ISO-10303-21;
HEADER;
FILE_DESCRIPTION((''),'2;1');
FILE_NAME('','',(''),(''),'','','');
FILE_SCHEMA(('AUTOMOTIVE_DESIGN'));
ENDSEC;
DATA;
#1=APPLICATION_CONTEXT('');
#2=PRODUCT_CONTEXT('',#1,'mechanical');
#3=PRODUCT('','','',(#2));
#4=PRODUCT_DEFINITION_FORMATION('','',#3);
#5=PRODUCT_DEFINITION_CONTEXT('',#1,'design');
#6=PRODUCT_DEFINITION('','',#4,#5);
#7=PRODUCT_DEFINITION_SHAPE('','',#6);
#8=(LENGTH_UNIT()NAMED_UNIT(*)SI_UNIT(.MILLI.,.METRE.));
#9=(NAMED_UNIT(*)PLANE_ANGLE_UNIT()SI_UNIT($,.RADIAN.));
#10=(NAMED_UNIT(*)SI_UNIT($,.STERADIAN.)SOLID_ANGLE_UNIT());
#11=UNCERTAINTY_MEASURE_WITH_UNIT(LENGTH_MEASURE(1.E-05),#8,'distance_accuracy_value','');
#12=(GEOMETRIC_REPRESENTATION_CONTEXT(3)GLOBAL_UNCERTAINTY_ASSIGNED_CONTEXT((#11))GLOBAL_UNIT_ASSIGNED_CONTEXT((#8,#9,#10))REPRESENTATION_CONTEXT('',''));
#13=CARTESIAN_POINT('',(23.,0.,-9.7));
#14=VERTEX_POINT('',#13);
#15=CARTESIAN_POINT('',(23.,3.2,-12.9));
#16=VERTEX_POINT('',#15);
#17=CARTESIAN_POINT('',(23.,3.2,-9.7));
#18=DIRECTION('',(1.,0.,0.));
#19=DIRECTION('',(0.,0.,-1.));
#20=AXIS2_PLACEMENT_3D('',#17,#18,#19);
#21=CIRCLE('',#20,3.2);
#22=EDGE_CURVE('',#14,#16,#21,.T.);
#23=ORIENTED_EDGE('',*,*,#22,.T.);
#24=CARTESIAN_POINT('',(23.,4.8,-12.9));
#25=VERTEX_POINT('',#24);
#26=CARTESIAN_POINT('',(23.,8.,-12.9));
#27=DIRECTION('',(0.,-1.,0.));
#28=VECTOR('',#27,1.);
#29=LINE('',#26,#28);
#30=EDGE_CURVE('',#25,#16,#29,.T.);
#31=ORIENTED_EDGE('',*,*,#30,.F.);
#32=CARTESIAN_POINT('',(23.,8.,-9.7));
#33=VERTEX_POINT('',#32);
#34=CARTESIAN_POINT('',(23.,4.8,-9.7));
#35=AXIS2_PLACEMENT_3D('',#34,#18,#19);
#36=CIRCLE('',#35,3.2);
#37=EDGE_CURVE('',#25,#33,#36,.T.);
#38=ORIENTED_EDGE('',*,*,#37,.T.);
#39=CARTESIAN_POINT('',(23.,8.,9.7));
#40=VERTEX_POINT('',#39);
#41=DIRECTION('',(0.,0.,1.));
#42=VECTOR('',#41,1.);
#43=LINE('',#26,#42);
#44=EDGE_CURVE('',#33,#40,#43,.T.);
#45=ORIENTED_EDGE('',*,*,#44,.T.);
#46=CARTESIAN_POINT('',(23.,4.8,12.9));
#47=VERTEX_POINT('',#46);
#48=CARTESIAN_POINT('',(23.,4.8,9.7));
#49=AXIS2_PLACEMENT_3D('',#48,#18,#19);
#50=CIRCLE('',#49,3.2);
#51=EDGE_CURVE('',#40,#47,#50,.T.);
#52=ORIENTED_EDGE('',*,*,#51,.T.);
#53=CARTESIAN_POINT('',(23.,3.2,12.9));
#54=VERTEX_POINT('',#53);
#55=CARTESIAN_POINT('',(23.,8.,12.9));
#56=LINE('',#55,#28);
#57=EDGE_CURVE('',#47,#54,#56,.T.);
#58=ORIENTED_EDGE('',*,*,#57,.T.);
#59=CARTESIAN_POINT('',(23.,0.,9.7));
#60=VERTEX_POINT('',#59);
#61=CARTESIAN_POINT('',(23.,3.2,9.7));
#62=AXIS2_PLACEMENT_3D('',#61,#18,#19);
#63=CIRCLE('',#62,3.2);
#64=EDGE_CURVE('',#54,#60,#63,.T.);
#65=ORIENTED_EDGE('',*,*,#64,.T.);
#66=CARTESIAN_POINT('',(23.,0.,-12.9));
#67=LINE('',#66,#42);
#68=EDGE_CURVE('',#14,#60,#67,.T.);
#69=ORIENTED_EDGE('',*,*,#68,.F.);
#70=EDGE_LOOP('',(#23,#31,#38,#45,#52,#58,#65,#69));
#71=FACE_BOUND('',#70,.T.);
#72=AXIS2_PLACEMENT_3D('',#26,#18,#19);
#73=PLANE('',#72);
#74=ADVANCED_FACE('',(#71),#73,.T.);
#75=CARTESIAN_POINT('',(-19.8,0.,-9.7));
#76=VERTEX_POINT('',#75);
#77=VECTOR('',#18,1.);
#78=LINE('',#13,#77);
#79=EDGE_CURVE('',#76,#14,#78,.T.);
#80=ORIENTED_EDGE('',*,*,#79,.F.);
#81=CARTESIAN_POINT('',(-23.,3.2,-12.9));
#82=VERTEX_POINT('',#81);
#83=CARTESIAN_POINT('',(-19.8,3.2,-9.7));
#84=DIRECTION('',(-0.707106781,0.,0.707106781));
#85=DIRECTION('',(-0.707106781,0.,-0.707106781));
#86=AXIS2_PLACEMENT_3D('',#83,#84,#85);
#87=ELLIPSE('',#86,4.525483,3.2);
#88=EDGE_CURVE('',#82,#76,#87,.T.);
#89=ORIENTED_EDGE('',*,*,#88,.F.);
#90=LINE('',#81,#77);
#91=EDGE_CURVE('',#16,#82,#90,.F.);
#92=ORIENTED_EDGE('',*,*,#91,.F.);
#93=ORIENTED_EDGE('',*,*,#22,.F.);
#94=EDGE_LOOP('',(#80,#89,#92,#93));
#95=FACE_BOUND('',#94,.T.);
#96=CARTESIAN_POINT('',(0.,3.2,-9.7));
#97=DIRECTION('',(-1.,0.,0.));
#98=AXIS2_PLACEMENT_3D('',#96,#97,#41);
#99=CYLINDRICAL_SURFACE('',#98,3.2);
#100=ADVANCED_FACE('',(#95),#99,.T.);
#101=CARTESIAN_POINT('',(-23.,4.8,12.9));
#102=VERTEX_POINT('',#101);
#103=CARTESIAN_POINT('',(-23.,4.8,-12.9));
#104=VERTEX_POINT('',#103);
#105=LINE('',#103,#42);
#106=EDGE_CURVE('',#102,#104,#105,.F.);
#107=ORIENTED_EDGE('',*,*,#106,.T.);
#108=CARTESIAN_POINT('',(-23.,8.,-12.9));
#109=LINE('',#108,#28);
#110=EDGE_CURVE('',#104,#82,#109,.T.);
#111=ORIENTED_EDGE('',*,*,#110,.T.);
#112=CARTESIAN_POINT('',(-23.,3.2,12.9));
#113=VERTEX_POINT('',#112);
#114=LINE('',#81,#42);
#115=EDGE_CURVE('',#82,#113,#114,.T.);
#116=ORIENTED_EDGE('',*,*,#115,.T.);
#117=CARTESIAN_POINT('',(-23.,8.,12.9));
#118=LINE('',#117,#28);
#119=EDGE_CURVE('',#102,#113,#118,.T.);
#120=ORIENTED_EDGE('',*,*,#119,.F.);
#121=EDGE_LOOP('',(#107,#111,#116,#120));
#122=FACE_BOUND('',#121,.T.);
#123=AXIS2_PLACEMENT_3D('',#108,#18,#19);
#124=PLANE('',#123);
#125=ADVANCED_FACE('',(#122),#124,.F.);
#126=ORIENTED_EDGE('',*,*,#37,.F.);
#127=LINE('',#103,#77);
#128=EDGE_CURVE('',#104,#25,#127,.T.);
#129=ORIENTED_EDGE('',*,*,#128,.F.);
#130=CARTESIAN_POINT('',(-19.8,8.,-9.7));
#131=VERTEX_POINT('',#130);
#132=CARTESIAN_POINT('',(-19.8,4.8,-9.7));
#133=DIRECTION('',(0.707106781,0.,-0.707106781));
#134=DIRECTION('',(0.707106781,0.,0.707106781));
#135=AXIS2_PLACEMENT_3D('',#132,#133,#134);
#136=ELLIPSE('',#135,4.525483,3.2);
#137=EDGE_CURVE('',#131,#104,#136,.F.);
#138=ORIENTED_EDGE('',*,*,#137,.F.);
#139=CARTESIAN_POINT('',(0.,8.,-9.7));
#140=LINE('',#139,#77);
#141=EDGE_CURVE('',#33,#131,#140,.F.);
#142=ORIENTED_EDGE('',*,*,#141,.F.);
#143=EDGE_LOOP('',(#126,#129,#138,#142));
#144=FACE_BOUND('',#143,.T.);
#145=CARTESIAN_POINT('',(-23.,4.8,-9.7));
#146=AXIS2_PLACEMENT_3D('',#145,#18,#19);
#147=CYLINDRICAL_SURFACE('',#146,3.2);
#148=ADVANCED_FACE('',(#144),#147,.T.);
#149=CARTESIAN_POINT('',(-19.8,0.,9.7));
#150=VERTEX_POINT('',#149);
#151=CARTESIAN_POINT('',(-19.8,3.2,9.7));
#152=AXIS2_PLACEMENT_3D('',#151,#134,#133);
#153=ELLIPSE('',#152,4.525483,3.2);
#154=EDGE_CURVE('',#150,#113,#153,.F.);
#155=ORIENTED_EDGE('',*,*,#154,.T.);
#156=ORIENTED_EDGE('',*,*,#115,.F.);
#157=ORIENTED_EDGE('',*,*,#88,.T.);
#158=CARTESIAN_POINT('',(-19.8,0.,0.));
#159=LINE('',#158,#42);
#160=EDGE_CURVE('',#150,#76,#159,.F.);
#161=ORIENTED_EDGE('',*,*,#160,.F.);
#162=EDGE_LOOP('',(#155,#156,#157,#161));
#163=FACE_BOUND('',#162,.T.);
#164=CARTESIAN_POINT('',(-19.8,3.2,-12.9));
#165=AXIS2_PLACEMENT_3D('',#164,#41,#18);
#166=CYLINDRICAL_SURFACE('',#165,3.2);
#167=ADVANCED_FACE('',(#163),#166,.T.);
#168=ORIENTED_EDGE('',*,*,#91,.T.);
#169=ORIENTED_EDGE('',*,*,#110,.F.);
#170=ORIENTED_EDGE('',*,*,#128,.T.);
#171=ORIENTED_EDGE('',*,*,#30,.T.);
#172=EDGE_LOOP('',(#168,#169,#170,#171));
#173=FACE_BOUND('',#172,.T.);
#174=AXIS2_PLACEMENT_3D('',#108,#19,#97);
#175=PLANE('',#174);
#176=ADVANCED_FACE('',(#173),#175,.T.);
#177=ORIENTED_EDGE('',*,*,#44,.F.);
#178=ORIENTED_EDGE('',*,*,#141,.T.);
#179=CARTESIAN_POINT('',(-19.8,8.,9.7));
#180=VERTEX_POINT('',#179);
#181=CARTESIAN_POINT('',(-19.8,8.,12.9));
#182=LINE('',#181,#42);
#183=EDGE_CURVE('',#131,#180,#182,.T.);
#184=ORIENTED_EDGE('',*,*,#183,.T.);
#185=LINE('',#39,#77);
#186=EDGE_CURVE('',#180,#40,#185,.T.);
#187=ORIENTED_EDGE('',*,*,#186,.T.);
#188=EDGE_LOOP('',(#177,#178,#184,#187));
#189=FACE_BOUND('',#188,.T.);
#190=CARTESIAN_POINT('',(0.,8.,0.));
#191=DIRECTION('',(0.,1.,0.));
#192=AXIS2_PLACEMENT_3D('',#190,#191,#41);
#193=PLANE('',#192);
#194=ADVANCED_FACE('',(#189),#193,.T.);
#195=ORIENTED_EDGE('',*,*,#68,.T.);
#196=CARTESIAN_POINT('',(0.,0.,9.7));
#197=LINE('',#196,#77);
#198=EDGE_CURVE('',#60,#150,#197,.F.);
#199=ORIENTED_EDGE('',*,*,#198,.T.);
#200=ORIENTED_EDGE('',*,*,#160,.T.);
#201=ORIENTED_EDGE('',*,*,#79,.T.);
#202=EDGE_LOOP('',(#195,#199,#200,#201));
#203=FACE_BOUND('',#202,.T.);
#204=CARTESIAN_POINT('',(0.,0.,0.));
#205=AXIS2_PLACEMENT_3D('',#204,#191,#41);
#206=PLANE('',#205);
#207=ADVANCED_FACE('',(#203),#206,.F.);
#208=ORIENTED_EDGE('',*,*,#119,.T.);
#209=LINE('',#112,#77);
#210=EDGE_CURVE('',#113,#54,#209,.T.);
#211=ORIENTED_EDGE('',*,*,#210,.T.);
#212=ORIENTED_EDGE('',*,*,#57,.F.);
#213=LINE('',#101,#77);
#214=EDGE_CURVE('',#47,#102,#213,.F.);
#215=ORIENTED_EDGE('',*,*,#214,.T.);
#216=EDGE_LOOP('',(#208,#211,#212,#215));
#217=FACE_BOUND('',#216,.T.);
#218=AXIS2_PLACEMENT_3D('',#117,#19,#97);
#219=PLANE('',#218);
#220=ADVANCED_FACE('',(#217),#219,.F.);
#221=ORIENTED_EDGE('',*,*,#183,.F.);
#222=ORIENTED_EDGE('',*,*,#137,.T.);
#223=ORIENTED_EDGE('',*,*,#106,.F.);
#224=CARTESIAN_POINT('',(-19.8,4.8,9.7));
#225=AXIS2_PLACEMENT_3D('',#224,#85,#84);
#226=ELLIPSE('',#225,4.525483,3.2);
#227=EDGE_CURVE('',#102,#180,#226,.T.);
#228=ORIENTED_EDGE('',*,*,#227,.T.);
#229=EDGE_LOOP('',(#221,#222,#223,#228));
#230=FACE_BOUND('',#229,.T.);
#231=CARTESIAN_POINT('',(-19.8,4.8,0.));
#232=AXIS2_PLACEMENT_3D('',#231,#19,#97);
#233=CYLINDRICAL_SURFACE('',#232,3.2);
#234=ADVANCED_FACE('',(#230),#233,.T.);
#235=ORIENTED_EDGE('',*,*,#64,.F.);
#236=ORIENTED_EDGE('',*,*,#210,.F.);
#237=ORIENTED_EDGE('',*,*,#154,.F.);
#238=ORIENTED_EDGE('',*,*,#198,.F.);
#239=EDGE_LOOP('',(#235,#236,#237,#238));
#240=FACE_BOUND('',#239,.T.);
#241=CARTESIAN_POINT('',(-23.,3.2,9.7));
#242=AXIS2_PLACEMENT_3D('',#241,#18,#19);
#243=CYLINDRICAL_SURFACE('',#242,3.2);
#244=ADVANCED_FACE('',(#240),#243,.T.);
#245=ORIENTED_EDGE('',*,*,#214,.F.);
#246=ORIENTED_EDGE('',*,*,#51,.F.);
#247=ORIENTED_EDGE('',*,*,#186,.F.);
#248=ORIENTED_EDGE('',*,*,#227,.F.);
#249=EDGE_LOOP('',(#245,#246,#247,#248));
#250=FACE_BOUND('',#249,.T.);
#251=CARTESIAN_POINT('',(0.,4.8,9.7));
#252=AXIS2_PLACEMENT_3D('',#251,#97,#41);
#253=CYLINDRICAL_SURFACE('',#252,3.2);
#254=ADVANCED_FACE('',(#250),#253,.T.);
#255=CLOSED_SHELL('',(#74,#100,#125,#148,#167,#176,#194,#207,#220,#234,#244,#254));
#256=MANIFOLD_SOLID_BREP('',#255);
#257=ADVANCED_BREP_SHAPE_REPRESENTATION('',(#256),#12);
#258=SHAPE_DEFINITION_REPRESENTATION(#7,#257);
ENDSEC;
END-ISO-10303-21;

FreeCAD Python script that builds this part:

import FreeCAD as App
import Part
import Sketcher

V = App.Vector


def edges_at(feature, points):
    """Names of the edges that pass closest to the given points."""
    edges = feature.Shape.Edges
    near = lambda p: min(range(len(edges)), key=lambda i: edges[i].distToShape(Part.Vertex(*p))[0])
    return sorted({f"Edge{near(p) + 1}" for p in points})

doc = App.newDocument("Part")
body = doc.addObject("PartDesign::Body", "Body")

sketch1 = body.newObject("Sketcher::SketchObject", "Sketch")
sketch1.AttachmentSupport = (doc.getObject("XZ_Plane"), [""])
sketch1.MapMode = "FlatFace"
sketch1.addGeometry([
    Part.LineSegment(V(-23, -12.9, 0), V(-23, 12.9, 0)),
    Part.LineSegment(V(-23, 12.9, 0), V(23, 12.9, 0)),
    Part.LineSegment(V(23, 12.9, 0), V(23, -12.9, 0)),
    Part.LineSegment(V(23, -12.9, 0), V(-23, -12.9, 0)),
], False)
sketch1.addConstraint([
    Sketcher.Constraint("Coincident", 0, 2, 1, 1),
    Sketcher.Constraint("Coincident", 1, 2, 2, 1),
    Sketcher.Constraint("Coincident", 2, 2, 3, 1),
    Sketcher.Constraint("Coincident", 3, 2, 0, 1),
    Sketcher.Constraint("Vertical", 0),
    Sketcher.Constraint("Horizontal", 1),
    Sketcher.Constraint("Vertical", 2),
    Sketcher.Constraint("Horizontal", 3),
    Sketcher.Constraint("Symmetric", 0, 2, 2, 2, -1, 1),
    Sketcher.Constraint("DistanceX", 1, 1, 1, 2, 46.0),
    Sketcher.Constraint("DistanceY", 0, 1, 0, 2, 25.8),
])
pad1 = body.newObject("PartDesign::Pad", "Pad")
pad1.Profile = sketch1
pad1.Length = 8
pad1.Reversed = True
doc.recompute()

fillet = body.newObject("PartDesign::Fillet", "Fillet")
fillet.Base = (pad1, edges_at(pad1, [
    (0, 8, -12.9),
    (-23, 8, 0),
    (0, 0, -12.9),
    (0, 0, 12.9),
    (-23, 0, 0),
    (0, 8, 12.9),
]))
fillet.Radius = 3.2

doc.recompute()
